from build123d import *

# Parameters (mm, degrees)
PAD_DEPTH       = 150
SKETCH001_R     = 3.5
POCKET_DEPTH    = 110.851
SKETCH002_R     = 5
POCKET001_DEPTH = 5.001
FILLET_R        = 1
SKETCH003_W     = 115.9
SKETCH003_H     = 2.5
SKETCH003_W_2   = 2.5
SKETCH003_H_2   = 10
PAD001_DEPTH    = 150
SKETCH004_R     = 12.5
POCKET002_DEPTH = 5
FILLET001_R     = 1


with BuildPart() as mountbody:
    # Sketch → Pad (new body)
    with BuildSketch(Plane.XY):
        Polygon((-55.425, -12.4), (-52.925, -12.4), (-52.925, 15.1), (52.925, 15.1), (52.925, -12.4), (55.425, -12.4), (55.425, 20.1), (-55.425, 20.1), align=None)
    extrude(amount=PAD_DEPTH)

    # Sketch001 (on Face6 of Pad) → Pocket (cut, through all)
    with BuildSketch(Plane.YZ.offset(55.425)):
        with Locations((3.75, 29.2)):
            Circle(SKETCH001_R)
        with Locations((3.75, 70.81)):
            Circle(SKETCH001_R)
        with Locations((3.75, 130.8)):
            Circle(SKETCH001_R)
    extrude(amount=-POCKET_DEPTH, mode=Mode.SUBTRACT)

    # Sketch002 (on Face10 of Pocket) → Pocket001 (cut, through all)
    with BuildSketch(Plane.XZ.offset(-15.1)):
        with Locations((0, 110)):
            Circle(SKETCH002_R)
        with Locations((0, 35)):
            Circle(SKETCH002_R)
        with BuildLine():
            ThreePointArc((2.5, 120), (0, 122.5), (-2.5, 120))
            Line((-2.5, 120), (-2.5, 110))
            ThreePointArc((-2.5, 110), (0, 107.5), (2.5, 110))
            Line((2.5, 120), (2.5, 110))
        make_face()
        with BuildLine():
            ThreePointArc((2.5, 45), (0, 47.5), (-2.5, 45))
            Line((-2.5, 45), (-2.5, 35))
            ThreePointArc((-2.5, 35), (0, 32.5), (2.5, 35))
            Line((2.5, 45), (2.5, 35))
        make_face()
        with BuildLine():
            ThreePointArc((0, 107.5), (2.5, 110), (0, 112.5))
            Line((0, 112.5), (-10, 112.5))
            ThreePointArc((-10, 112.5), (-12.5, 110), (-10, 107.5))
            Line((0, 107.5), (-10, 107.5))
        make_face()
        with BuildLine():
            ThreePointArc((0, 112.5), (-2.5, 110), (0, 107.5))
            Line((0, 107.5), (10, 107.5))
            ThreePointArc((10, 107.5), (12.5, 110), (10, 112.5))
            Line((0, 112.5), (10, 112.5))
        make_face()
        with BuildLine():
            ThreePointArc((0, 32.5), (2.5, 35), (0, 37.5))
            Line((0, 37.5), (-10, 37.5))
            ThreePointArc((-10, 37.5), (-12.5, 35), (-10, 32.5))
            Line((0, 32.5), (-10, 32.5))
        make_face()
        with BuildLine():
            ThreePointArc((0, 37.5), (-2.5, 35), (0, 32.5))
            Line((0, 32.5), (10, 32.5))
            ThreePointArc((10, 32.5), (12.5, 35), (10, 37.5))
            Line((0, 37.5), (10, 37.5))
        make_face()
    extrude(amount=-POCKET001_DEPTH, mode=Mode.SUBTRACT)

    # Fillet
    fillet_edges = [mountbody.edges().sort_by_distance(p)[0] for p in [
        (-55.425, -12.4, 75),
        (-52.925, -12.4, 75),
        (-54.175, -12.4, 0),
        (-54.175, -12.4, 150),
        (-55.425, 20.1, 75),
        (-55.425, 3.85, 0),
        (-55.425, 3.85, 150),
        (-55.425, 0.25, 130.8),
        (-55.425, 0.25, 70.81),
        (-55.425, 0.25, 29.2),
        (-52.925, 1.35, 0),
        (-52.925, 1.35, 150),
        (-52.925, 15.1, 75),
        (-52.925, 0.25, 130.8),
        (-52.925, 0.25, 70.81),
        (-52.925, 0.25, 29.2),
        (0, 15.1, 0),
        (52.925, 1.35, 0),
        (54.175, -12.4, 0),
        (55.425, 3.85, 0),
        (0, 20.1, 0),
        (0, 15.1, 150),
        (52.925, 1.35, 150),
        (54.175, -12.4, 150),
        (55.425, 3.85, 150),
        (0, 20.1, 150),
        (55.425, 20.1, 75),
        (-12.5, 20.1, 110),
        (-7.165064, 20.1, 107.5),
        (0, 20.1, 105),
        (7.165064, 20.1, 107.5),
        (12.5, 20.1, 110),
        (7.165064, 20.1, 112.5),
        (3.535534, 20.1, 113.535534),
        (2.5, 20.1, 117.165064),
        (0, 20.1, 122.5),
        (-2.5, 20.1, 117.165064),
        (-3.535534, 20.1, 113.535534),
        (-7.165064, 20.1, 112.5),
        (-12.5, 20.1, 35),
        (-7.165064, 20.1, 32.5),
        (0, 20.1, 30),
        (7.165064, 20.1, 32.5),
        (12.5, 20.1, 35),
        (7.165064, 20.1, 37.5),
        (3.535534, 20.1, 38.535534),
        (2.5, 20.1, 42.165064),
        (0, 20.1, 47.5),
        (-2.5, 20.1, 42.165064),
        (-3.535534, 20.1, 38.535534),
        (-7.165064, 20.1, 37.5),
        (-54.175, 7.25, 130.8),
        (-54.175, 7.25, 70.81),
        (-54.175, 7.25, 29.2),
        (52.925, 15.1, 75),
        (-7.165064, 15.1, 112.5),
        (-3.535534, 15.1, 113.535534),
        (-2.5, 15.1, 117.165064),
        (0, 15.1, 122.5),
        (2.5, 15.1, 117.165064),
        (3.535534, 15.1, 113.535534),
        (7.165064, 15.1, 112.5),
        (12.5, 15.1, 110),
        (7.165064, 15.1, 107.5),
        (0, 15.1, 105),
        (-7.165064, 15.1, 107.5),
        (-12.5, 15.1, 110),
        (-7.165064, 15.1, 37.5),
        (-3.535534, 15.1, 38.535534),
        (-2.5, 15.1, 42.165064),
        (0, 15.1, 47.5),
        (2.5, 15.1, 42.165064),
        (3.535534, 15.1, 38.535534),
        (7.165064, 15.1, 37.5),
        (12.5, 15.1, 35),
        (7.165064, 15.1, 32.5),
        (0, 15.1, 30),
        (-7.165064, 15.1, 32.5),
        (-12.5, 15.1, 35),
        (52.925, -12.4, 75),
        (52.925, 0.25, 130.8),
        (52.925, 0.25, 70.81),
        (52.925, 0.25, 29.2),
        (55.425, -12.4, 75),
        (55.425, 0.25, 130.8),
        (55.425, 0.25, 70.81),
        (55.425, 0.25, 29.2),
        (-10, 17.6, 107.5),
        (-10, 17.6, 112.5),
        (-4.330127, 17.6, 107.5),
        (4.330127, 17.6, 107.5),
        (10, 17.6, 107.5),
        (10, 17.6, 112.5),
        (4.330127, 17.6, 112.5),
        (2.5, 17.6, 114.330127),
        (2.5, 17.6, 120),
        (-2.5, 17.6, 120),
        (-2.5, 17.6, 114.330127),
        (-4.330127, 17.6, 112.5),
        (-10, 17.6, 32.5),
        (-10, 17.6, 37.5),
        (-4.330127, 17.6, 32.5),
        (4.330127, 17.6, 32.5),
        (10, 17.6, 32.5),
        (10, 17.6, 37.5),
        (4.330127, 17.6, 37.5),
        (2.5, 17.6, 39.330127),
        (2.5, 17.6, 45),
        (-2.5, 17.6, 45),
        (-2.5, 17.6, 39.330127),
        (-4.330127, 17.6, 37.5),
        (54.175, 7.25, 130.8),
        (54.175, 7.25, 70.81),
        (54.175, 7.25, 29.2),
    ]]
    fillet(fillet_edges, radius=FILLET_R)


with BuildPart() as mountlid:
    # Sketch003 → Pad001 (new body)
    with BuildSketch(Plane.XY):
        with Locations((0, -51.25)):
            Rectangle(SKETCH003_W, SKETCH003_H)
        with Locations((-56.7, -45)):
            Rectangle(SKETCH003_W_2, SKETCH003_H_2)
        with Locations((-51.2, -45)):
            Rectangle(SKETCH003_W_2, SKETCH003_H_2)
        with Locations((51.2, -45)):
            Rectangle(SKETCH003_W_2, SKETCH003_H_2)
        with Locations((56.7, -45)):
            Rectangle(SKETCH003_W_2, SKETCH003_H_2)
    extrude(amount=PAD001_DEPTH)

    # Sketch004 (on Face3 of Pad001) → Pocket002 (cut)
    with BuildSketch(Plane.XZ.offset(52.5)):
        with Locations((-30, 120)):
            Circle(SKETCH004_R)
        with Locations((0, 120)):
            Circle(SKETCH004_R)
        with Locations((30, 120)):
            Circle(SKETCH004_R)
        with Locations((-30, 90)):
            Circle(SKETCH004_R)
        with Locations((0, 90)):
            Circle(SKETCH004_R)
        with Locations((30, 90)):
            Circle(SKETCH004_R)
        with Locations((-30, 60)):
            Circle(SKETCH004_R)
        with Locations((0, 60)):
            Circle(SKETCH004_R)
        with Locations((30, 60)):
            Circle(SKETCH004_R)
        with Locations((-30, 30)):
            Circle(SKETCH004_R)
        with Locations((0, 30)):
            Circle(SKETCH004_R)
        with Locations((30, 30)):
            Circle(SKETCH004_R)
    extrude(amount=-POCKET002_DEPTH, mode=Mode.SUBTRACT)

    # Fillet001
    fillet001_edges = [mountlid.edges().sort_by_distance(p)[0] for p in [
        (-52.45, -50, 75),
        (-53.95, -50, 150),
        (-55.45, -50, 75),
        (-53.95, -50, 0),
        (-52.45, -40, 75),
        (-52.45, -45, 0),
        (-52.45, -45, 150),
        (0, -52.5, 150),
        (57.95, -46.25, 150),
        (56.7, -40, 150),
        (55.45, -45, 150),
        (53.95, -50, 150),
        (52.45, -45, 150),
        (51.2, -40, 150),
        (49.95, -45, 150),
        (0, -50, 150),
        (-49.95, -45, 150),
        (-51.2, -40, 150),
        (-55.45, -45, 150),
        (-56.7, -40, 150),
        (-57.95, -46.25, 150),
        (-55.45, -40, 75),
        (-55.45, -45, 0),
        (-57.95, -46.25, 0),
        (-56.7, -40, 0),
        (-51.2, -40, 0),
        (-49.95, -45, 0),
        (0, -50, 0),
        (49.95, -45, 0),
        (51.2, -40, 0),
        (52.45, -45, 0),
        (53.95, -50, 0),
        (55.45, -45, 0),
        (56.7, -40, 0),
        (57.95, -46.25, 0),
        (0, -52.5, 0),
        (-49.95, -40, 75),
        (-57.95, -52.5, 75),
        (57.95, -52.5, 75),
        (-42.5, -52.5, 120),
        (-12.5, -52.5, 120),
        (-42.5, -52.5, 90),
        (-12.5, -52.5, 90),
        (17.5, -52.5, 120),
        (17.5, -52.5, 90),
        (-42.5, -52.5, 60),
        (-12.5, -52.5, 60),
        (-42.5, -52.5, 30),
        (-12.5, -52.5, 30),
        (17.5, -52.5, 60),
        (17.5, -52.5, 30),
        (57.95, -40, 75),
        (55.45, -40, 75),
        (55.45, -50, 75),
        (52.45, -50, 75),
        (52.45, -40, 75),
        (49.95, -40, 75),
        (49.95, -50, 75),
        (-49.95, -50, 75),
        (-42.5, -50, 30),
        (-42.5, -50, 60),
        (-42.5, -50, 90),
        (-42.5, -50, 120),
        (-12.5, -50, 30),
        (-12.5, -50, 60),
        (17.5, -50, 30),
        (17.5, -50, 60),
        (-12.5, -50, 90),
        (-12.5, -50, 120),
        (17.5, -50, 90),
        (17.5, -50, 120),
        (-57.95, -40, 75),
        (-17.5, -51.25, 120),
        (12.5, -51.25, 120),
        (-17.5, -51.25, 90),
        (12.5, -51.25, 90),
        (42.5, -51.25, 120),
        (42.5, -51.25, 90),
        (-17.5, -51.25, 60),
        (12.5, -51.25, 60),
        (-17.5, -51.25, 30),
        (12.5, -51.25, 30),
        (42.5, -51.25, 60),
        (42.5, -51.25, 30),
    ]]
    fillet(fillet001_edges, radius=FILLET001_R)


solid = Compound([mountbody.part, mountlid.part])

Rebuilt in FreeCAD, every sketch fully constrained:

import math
import FreeCAD as App
import Part
import Sketcher
from FreeCAD import Vector
Q = App.Units.Quantity


def add_polygon(sketch, points):
    """Adds a closed chain of lines whose ends are joined by coincident constraints."""
    first, n = sketch.GeometryCount, len(points)
    for a, b in zip(points, points[1:] + points[:1]):
        sketch.addGeometry(Part.LineSegment(App.Vector(*a, 0), App.Vector(*b, 0)), False)
    for i in range(n):
        sketch.addConstraint(Sketcher.Constraint("Coincident", first + i, 2, first + (i + 1) % n, 1))

doc = App.newDocument("Part")
body = doc.addObject("PartDesign::Body", "Body")

# Sketch on XY plane
sketch1 = doc.addObject("Sketcher::SketchObject", "Sketch")
body.addObject(sketch1)
sketch1.AttachmentSupport = (doc.XY_Plane, [""])
sketch1.MapMode = "FlatFace"
add_polygon(sketch1, [(-55.4, -12.4), (-52.9, -12.4), (-52.9, 15.1), (52.9, 15.1), (52.9, -12.4), (55.4, -12.4), (55.4, 20.1), (-55.4, 20.1)])  # lines 0-7
sketch1.addConstraint([
    Sketcher.Constraint("Horizontal", 0),
    Sketcher.Constraint("Vertical", 1),
    Sketcher.Constraint("Horizontal", 2),
    Sketcher.Constraint("Vertical", 3),
    Sketcher.Constraint("Horizontal", 4),
    Sketcher.Constraint("Vertical", 5),
    Sketcher.Constraint("Horizontal", 6),
    Sketcher.Constraint("Vertical", 7),
    Sketcher.Constraint("Symmetric", 0, 2, 3, 2, -2),
    Sketcher.Constraint("Equal", 0, 4),
    Sketcher.Constraint("DistanceX", 0, 1, 0, 2, Q("2.5 mm")),
    Sketcher.Constraint("DistanceY", 1, 1, 1, 2, Q("27.5 mm")),
    Sketcher.Constraint("DistanceY", 5, 1, 5, 2, Q("32.5 mm")),
    Sketcher.Constraint("DistanceX", 2, 1, 2, 2, Q("105.85 mm")),
    Sketcher.Constraint("DistanceY", 0, 2, -1, 1, Q("12.4 mm")),
])
pad1 = doc.addObject("PartDesign::Pad", "Pad")
body.addObject(pad1)
pad1.Profile = sketch1
pad1.Length = 150

# Sketch on YZ plane
sketch2 = doc.addObject("Sketcher::SketchObject", "Sketch001")
body.addObject(sketch2)
sketch2.AttachmentSupport = (doc.YZ_Plane, [""])
sketch2.MapMode = "FlatFace"
sketch2.AttachmentOffset = App.Placement(Vector(0, 0, 55.425), App.Rotation())
sketch2.addGeometry([
    Part.Circle(Vector(3.8, 29.2, 0), Vector(0, 0, 1), 3.5),
    Part.Circle(Vector(3.8, 70.8, 0), Vector(0, 0, 1), 3.5),
    Part.Circle(Vector(3.8, 130.8, 0), Vector(0, 0, 1), 3.5),
], False)
sketch2.addConstraint([
    Sketcher.Constraint("Equal", 0, 1),
    Sketcher.Constraint("Equal", 1, 2),
    Sketcher.Constraint("Vertical", 0, 3, 1, 3),
    Sketcher.Constraint("Vertical", 1, 3, 2, 3),
    Sketcher.Constraint("Diameter", 0, Q("7 mm")),
    Sketcher.Constraint("DistanceY", -1, 1, 0, 3, Q("29.2 mm")),
    Sketcher.Constraint("DistanceY", -1, 1, 2, 3, Q("130.8 mm")),
    Sketcher.Constraint("DistanceX", -1, 1, 0, 3, Q("3.75 mm")),
    Sketcher.Constraint("DistanceY", -1, 1, 1, 3, Q("70.81 mm")),
])
pocket1 = doc.addObject("PartDesign::Pocket", "Pocket")
body.addObject(pocket1)
pocket1.Profile = sketch2
pocket1.Type = "ThroughAll"

# Sketch on XZ plane
sketch3 = doc.addObject("Sketcher::SketchObject", "Sketch002")
body.addObject(sketch3)
sketch3.AttachmentSupport = (doc.XZ_Plane, [""])
sketch3.MapMode = "FlatFace"
sketch3.AttachmentOffset = App.Placement(Vector(0, 0, -15.1), App.Rotation())
sketch3.addGeometry([
    Part.ArcOfCircle(Part.Circle(Vector(0, 120, 0), Vector(0, 0, 1), 2.5), math.radians(0), math.radians(180)),  # 0
    Part.LineSegment(Vector(-2.5, 120, 0), Vector(-2.5, 114.3, 0)),  # 1
    Part.ArcOfCircle(Part.Circle(Vector(0, 110, 0), Vector(0, 0, 1), 5), math.radians(120), math.radians(150)),  # 2
    Part.LineSegment(Vector(-4.3, 112.5, 0), Vector(-10, 112.5, 0)),  # 3
    Part.ArcOfCircle(Part.Circle(Vector(-10, 110, 0), Vector(0, 0, 1), 2.5), math.radians(90), math.radians(270)),  # 4
    Part.LineSegment(Vector(-10, 107.5, 0), Vector(-4.3, 107.5, 0)),  # 5
    Part.ArcOfCircle(Part.Circle(Vector(0, 110, 0), Vector(0, 0, 1), 5), math.radians(-150), math.radians(-30)),  # 6
    Part.LineSegment(Vector(4.3, 107.5, 0), Vector(10, 107.5, 0)),  # 7
    Part.ArcOfCircle(Part.Circle(Vector(10, 110, 0), Vector(0, 0, 1), 2.5), math.radians(-90), math.radians(90)),  # 8
    Part.LineSegment(Vector(10, 112.5, 0), Vector(4.3, 112.5, 0)),  # 9
    Part.ArcOfCircle(Part.Circle(Vector(0, 110, 0), Vector(0, 0, 1), 5), math.radians(30), math.radians(60)),  # 10
    Part.LineSegment(Vector(2.5, 114.3, 0), Vector(2.5, 120, 0)),  # 11
    Part.ArcOfCircle(Part.Circle(Vector(0, 45, 0), Vector(0, 0, 1), 2.5), math.radians(0), math.radians(180)),  # 12
    Part.LineSegment(Vector(-2.5, 45, 0), Vector(-2.5, 39.3, 0)),  # 13
    Part.ArcOfCircle(Part.Circle(Vector(0, 35, 0), Vector(0, 0, 1), 5), math.radians(120), math.radians(150)),  # 14
    Part.LineSegment(Vector(-4.3, 37.5, 0), Vector(-10, 37.5, 0)),  # 15
    Part.ArcOfCircle(Part.Circle(Vector(-10, 35, 0), Vector(0, 0, 1), 2.5), math.radians(90), math.radians(270)),  # 16
    Part.LineSegment(Vector(-10, 32.5, 0), Vector(-4.3, 32.5, 0)),  # 17
    Part.ArcOfCircle(Part.Circle(Vector(0, 35, 0), Vector(0, 0, 1), 5), math.radians(-150), math.radians(-30)),  # 18
    Part.LineSegment(Vector(4.3, 32.5, 0), Vector(10, 32.5, 0)),  # 19
    Part.ArcOfCircle(Part.Circle(Vector(10, 35, 0), Vector(0, 0, 1), 2.5), math.radians(-90), math.radians(90)),  # 20
    Part.LineSegment(Vector(10, 37.5, 0), Vector(4.3, 37.5, 0)),  # 21
    Part.ArcOfCircle(Part.Circle(Vector(0, 35, 0), Vector(0, 0, 1), 5), math.radians(30), math.radians(60)),  # 22
    Part.LineSegment(Vector(2.5, 39.3, 0), Vector(2.5, 45, 0)),  # 23
], False)
sketch3.addConstraint([
    Sketcher.Constraint("Tangent", 0, 2, 1, 1),
    Sketcher.Constraint("Coincident", 1, 2, 2, 1),
    Sketcher.Constraint("Coincident", 2, 2, 3, 1),
    Sketcher.Constraint("Tangent", 3, 2, 4, 1),
    Sketcher.Constraint("Tangent", 4, 2, 5, 1),
    Sketcher.Constraint("Coincident", 5, 2, 6, 1),
    Sketcher.Constraint("Coincident", 6, 2, 7, 1),
    Sketcher.Constraint("Tangent", 7, 2, 8, 1),
    Sketcher.Constraint("Tangent", 8, 2, 9, 1),
    Sketcher.Constraint("Coincident", 9, 2, 10, 1),
    Sketcher.Constraint("Coincident", 10, 2, 11, 1),
    Sketcher.Constraint("Tangent", 11, 2, 0, 1),
    Sketcher.Constraint("Tangent", 12, 2, 13, 1),
    Sketcher.Constraint("Coincident", 13, 2, 14, 1),
    Sketcher.Constraint("Coincident", 14, 2, 15, 1),
    Sketcher.Constraint("Tangent", 15, 2, 16, 1),
    Sketcher.Constraint("Tangent", 16, 2, 17, 1),
    Sketcher.Constraint("Coincident", 17, 2, 18, 1),
    Sketcher.Constraint("Coincident", 18, 2, 19, 1),
    Sketcher.Constraint("Tangent", 19, 2, 20, 1),
    Sketcher.Constraint("Tangent", 20, 2, 21, 1),
    Sketcher.Constraint("Coincident", 21, 2, 22, 1),
    Sketcher.Constraint("Coincident", 22, 2, 23, 1),
    Sketcher.Constraint("Tangent", 23, 2, 12, 1),
    Sketcher.Constraint("Vertical", 1),
    Sketcher.Constraint("Horizontal", 3),
    Sketcher.Constraint("Horizontal", 5),
    Sketcher.Constraint("Horizontal", 7),
    Sketcher.Constraint("Horizontal", 9),
    Sketcher.Constraint("Vertical", 11),
    Sketcher.Constraint("Vertical", 13),
    Sketcher.Constraint("Horizontal", 15),
    Sketcher.Constraint("Horizontal", 17),
    Sketcher.Constraint("Horizontal", 19),
    Sketcher.Constraint("Horizontal", 21),
    Sketcher.Constraint("Vertical", 23),
    Sketcher.Constraint("Coincident", 6, 3, 2, 3),
    Sketcher.Constraint("Coincident", 10, 3, 2, 3),
    Sketcher.Constraint("Coincident", 18, 3, 14, 3),
    Sketcher.Constraint("Coincident", 22, 3, 14, 3),
    Sketcher.Constraint("Equal", 0, 4),
    Sketcher.Constraint("Equal", 2, 6),
    Sketcher.Constraint("Equal", 4, 8),
    Sketcher.Constraint("Equal", 6, 10),
    Sketcher.Constraint("Equal", 8, 12),
    Sketcher.Constraint("Equal", 10, 14),
    Sketcher.Constraint("Equal", 12, 16),
    Sketcher.Constraint("Equal", 14, 18),
    Sketcher.Constraint("Equal", 16, 20),
    Sketcher.Constraint("Equal", 18, 22),
    Sketcher.Constraint("Symmetric", 4, 3, 8, 3, -2),
    Sketcher.Constraint("Symmetric", 16, 3, 20, 3, -2),
    Sketcher.Constraint("Symmetric", 1, 2, 10, 2, -2),
    Sketcher.Constraint("Symmetric", 13, 2, 22, 2, -2),
    Sketcher.Constraint("Horizontal", 2, 3, 4, 3),
    Sketcher.Constraint("Horizontal", 14, 3, 16, 3),
    Sketcher.Constraint("Vertical", 4, 3, 16, 3),
    Sketcher.Constraint("Equal", 21, 1),
    Sketcher.Constraint("Equal", 11, 13),
    Sketcher.Constraint("Radius", 2, Q("5 mm")),
    Sketcher.Constraint("Radius", 0, Q("2.5 mm")),
    Sketcher.Constraint("DistanceY", -1, 1, 0, 3, Q("120 mm")),
    Sketcher.Constraint("DistanceY", -1, 1, 2, 3, Q("110 mm")),
    Sketcher.Constraint("DistanceY", -1, 1, 12, 3, Q("45 mm")),
])
pocket2 = doc.addObject("PartDesign::Pocket", "Pocket001")
body.addObject(pocket2)
pocket2.Profile = sketch3
pocket2.Type = "ThroughAll"
doc.recompute()

fillet = doc.addObject("PartDesign::Fillet", "Fillet")
body.addObject(fillet)
fillet.Base = (pocket2, ["Edge1"])
fillet.UseAllEdges = True
fillet.Radius = 1
body2 = doc.addObject("PartDesign::Body", "Body001")

# Sketch on XY plane
sketch4 = doc.addObject("Sketcher::SketchObject", "Sketch003")
body2.addObject(sketch4)
sketch4.AttachmentSupport = (doc.getObject("XY_Plane001"), [""])
sketch4.MapMode = "FlatFace"
add_polygon(sketch4, [(-58, -52.5), (58, -52.5), (58, -40), (55.5, -40), (55.5, -50), (52.5, -50), (52.5, -40), (50, -40), (50, -50), (-50, -50), (-50, -40), (-52.5, -40), (-52.5, -50), (-55.5, -50), (-55.5, -40), (-58, -40)])  # lines 0-15
sketch4.addConstraint([
    Sketcher.Constraint("Horizontal", 0),
    Sketcher.Constraint("Vertical", 1),
    Sketcher.Constraint("Horizontal", 2),
    Sketcher.Constraint("Vertical", 3),
    Sketcher.Constraint("Horizontal", 4),
    Sketcher.Constraint("Vertical", 5),
    Sketcher.Constraint("Horizontal", 6),
    Sketcher.Constraint("Vertical", 7),
    Sketcher.Constraint("Horizontal", 8),
    Sketcher.Constraint("Vertical", 9),
    Sketcher.Constraint("Horizontal", 10),
    Sketcher.Constraint("Vertical", 11),
    Sketcher.Constraint("Horizontal", 12),
    Sketcher.Constraint("Vertical", 13),
    Sketcher.Constraint("Horizontal", 14),
    Sketcher.Constraint("Vertical", 15),
    Sketcher.Constraint("Symmetric", 6, 2, 9, 2, -2),
    Sketcher.Constraint("Symmetric", 4, 2, 11, 2, -2),
    Sketcher.Constraint("Symmetric", 2, 2, 13, 2, -2),
    Sketcher.Constraint("Horizontal", 2, 2, 5, 2),
    Sketcher.Constraint("Horizontal", 4, 2, 7, 2),
    Sketcher.Constraint("Equal", 2, 6),
    Sketcher.Constraint("Equal", 10, 14),
    Sketcher.Constraint("DistanceX", 4, 2, 4, 1, Q("3 mm")),
    Sketcher.Constraint("DistanceY", 3, 2, 3, 1, Q("10 mm")),
    Sketcher.Constraint("DistanceX", 0, 1, 0, 2, Q("115.9 mm")),
    Sketcher.Constraint("DistanceX", 2, 2, 2, 1, Q("2.5 mm")),
    Sketcher.Constraint("DistanceY", 1, 1, 1, 2, Q("12.5 mm")),
    Sketcher.Constraint("DistanceY", 1, 2, -1, 1, Q("40 mm")),
])
pad2 = doc.addObject("PartDesign::Pad", "Pad001")
body2.addObject(pad2)
pad2.Profile = sketch4
pad2.Length = 150

# Sketch on XZ plane
sketch5 = doc.addObject("Sketcher::SketchObject", "Sketch004")
body2.addObject(sketch5)
sketch5.AttachmentSupport = (doc.getObject("XZ_Plane001"), [""])
sketch5.MapMode = "FlatFace"
sketch5.AttachmentOffset = App.Placement(Vector(0, 0, 52.5), App.Rotation())
sketch5.addGeometry([
    Part.Circle(Vector(-30, 120, 0), Vector(0, 0, 1), 12),  # 0
    Part.Circle(Vector(0, 120, 0), Vector(0, 0, 1), 12),  # 1
    Part.Circle(Vector(30, 120, 0), Vector(0, 0, 1), 12),  # 2
    Part.Circle(Vector(-30, 90, 0), Vector(0, 0, 1), 12),  # 3
    Part.Circle(Vector(0, 90, 0), Vector(0, 0, 1), 12),  # 4
    Part.Circle(Vector(30, 90, 0), Vector(0, 0, 1), 12),  # 5
    Part.Circle(Vector(-30, 60, 0), Vector(0, 0, 1), 12),  # 6
    Part.Circle(Vector(0, 60, 0), Vector(0, 0, 1), 12),  # 7
    Part.Circle(Vector(30, 60, 0), Vector(0, 0, 1), 12),  # 8
    Part.Circle(Vector(-30, 30, 0), Vector(0, 0, 1), 12),  # 9
    Part.Circle(Vector(0, 30, 0), Vector(0, 0, 1), 12),  # 10
    Part.Circle(Vector(30, 30, 0), Vector(0, 0, 1), 12),  # 11
], False)
sketch5.addConstraint([
    Sketcher.Constraint("Equal", 0, 1),
    Sketcher.Constraint("Equal", 1, 2),
    Sketcher.Constraint("Equal", 2, 3),
    Sketcher.Constraint("Equal", 3, 4),
    Sketcher.Constraint("Equal", 4, 5),
    Sketcher.Constraint("Equal", 5, 6),
    Sketcher.Constraint("Equal", 6, 7),
    Sketcher.Constraint("Equal", 7, 8),
    Sketcher.Constraint("Equal", 8, 9),
    Sketcher.Constraint("Equal", 9, 10),
    Sketcher.Constraint("Equal", 10, 11),
    Sketcher.Constraint("Symmetric", 0, 3, 2, 3, -2),
    Sketcher.Constraint("Symmetric", 3, 3, 5, 3, -2),
    Sketcher.Constraint("Symmetric", 6, 3, 8, 3, -2),
    Sketcher.Constraint("Symmetric", 9, 3, 11, 3, -2),
    Sketcher.Constraint("PointOnObject", 1, 3, -2),
    Sketcher.Constraint("PointOnObject", 4, 3, -2),
    Sketcher.Constraint("PointOnObject", 7, 3, -2),
    Sketcher.Constraint("PointOnObject", 10, 3, -2),
    Sketcher.Constraint("Horizontal", 0, 3, 1, 3),
    Sketcher.Constraint("Horizontal", 3, 3, 4, 3),
    Sketcher.Constraint("Horizontal", 6, 3, 7, 3),
    Sketcher.Constraint("Horizontal", 9, 3, 10, 3),
    Sketcher.Constraint("Vertical", 0, 3, 3, 3),
    Sketcher.Constraint("Vertical", 3, 3, 6, 3),
    Sketcher.Constraint("Vertical", 6, 3, 9, 3),
    Sketcher.Constraint("Diameter", 0, Q("25 mm")),
    Sketcher.Constraint("DistanceX", 0, 3, -1, 1, Q("30 mm")),
    Sketcher.Constraint("DistanceY", -1, 1, 0, 3, Q("120 mm")),
    Sketcher.Constraint("DistanceY", -1, 1, 3, 3, Q("90 mm")),
    Sketcher.Constraint("DistanceY", -1, 1, 6, 3, Q("60 mm")),
    Sketcher.Constraint("DistanceY", -1, 1, 9, 3, Q("30 mm")),
])
pocket3 = doc.addObject("PartDesign::Pocket", "Pocket002")
body2.addObject(pocket3)
pocket3.Profile = sketch5
pocket3.Length = 5
doc.recompute()

fillet2 = doc.addObject("PartDesign::Fillet", "Fillet001")
body2.addObject(fillet2)
fillet2.Base = (pocket3, ["Edge1"])
fillet2.UseAllEdges = True
fillet2.Radius = 1

doc.recompute()
